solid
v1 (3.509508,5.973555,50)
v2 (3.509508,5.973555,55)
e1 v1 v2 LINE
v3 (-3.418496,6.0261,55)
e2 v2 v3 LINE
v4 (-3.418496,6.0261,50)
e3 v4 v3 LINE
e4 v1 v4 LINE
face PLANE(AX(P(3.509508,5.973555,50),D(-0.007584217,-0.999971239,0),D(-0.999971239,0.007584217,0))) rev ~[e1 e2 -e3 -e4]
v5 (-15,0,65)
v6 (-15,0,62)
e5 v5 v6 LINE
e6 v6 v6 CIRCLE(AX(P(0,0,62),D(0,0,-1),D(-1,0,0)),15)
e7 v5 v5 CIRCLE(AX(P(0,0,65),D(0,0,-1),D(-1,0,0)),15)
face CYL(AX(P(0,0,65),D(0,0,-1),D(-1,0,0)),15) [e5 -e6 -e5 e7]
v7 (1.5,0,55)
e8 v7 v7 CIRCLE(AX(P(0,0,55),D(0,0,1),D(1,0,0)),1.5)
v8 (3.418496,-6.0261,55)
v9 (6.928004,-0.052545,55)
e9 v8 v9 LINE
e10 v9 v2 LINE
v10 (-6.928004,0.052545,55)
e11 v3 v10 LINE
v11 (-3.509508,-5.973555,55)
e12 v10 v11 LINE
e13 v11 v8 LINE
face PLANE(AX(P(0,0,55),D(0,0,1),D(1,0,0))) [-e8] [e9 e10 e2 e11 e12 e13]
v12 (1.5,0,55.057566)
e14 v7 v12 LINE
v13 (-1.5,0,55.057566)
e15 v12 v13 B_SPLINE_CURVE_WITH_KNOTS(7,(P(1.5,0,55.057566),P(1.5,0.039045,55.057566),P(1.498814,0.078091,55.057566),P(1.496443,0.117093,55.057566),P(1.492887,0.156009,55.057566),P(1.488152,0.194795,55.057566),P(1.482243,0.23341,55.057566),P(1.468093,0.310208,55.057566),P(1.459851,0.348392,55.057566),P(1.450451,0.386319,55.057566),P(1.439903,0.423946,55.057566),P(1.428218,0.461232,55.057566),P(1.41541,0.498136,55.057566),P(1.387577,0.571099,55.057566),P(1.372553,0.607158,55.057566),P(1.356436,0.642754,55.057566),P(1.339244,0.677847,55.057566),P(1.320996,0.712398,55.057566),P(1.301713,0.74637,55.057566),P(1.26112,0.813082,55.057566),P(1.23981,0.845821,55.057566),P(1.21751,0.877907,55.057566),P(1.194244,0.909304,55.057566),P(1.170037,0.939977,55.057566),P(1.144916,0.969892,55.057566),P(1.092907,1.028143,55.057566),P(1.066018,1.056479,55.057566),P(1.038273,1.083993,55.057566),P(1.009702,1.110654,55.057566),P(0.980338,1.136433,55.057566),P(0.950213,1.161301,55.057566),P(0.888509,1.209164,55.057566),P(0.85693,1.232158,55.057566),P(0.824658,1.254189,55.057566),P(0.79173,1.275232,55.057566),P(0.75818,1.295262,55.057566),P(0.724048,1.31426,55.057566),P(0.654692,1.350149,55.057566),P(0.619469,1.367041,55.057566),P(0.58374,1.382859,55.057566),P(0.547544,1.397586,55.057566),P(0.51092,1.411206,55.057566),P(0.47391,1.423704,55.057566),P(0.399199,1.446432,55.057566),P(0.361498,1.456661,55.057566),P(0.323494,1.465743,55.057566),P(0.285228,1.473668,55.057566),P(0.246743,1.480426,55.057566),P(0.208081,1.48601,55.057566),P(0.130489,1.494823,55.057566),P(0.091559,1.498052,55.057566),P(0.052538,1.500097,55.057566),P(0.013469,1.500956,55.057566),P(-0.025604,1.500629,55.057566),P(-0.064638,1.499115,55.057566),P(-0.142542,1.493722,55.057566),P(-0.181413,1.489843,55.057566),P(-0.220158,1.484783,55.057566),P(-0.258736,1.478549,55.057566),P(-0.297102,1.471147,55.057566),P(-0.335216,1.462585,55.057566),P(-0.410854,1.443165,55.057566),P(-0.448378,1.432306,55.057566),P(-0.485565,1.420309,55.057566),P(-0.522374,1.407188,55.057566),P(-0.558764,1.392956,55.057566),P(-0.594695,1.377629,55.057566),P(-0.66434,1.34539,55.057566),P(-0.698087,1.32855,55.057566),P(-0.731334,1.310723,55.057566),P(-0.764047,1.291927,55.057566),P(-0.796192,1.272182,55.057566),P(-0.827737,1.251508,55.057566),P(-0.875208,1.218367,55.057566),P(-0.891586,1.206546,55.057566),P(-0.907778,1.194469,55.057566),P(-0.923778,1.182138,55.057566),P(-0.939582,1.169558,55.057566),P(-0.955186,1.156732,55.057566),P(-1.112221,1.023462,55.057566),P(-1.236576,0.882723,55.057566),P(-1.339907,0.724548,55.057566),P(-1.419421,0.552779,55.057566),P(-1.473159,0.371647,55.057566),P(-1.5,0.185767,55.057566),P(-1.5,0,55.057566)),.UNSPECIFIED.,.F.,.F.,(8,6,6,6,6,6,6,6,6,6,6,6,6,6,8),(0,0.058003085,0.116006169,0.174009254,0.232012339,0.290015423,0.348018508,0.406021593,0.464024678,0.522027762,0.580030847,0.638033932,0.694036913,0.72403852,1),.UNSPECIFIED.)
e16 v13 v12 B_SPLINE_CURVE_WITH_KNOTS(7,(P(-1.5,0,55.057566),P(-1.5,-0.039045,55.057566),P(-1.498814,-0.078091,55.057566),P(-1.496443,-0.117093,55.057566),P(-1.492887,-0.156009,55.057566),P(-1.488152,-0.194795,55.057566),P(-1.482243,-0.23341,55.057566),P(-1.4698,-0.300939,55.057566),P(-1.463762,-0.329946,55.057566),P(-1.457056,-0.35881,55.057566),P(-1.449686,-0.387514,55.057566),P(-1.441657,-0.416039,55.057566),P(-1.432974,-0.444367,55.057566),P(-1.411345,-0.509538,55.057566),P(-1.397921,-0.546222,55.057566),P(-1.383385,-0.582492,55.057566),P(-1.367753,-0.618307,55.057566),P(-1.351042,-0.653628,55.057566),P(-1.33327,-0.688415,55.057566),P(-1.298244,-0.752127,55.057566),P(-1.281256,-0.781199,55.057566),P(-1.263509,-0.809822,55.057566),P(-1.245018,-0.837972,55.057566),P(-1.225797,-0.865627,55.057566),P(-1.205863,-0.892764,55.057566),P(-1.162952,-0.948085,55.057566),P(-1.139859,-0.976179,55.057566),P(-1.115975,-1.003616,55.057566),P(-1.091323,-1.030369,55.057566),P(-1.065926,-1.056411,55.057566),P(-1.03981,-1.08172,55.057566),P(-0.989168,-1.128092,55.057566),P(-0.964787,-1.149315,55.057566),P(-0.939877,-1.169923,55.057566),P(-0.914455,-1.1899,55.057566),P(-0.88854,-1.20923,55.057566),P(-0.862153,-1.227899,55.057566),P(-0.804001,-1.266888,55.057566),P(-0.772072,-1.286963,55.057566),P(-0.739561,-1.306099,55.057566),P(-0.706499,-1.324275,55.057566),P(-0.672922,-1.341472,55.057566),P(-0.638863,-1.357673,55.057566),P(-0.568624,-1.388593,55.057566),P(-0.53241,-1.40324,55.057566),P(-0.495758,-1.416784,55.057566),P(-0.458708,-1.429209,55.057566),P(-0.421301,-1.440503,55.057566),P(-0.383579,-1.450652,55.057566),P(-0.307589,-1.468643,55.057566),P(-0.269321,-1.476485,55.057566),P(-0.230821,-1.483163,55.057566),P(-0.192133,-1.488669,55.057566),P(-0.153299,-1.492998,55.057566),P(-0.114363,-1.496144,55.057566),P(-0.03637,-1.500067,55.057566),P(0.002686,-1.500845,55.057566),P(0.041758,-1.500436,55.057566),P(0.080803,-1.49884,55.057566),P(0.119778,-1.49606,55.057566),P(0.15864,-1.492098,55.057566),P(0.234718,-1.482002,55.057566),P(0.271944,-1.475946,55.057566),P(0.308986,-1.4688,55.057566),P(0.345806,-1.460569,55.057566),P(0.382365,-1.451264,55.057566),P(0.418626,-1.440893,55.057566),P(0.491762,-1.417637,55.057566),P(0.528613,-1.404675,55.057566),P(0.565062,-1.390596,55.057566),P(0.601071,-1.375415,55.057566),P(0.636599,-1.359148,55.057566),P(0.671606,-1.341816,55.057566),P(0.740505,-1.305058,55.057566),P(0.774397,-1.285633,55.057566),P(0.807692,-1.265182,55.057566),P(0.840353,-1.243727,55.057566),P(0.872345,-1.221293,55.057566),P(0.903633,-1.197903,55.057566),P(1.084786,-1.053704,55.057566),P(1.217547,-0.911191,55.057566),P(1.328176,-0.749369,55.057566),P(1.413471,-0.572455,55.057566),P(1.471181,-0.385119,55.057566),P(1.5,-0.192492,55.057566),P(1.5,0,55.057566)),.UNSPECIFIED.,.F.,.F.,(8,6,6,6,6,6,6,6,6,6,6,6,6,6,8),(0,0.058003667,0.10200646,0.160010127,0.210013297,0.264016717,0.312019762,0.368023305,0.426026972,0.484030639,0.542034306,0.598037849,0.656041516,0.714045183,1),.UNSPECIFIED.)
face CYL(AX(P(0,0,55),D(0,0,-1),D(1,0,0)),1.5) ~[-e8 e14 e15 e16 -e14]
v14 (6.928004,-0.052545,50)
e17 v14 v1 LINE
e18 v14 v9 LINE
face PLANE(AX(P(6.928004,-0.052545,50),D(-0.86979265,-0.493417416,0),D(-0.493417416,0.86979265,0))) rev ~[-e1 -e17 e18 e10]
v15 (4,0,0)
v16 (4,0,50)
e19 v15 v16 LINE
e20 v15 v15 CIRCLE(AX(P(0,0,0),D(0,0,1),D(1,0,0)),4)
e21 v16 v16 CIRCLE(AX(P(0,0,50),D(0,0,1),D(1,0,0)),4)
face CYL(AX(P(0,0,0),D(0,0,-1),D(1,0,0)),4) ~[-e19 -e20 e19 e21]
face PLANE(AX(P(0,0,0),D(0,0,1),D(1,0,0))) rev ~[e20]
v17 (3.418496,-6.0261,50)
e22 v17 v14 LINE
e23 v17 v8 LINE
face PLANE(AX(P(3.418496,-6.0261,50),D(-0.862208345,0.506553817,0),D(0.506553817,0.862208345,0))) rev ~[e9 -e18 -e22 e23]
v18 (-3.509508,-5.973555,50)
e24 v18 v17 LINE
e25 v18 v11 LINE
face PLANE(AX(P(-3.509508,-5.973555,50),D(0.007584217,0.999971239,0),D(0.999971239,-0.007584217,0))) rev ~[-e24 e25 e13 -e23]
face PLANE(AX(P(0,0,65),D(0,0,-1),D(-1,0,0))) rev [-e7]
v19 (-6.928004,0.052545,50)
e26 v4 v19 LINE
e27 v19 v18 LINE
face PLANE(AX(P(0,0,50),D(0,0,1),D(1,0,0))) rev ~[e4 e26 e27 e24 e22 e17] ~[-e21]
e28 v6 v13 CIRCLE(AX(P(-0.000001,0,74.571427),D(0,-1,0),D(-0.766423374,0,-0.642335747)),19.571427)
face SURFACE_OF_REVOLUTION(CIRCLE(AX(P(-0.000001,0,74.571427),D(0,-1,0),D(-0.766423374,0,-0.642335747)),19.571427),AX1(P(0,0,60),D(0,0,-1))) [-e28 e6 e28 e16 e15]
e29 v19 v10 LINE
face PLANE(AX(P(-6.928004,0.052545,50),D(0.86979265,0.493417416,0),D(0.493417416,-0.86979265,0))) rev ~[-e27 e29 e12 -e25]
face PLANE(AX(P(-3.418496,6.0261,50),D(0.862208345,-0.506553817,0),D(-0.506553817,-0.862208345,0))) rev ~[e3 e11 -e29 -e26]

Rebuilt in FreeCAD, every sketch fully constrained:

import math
import FreeCAD as App
import Part
import Sketcher
from FreeCAD import Vector

doc = App.newDocument("Part")
body = doc.addObject("PartDesign::Body", "Body")

sketch1 = body.newObject("Sketcher::SketchObject", "Sketch")
sketch1.AttachmentSupport = (doc.getObject("XY_Plane"), [""])
sketch1.MapMode = "FlatFace"
sketch1.addGeometry(Part.Circle(Vector(0, 0, 0), Vector(0, 0, 1), 4), False)
sketch1.addConstraint([
    Sketcher.Constraint("Coincident", 0, 3, -1, 1),
    Sketcher.Constraint("Diameter", 0, 8.0),
])
pad1 = body.newObject("PartDesign::Pad", "Pad")
pad1.Profile = sketch1
pad1.Length = 50

sketch2 = body.newObject("Sketcher::SketchObject", "Sketch001")
sketch2.AttachmentSupport = (doc.getObject("XY_Plane"), [""])
sketch2.MapMode = "FlatFace"
sketch2.AttachmentOffset = App.Placement(Vector(0, 0, 50), App.Rotation())
sketch2.addGeometry([
    Part.LineSegment(Vector(7, 0, 0), Vector(4, 6, 0)),
    Part.LineSegment(Vector(4, 6, 0), Vector(-3, 6, 0)),
    Part.LineSegment(Vector(-3, 6, 0), Vector(-7, 0, 0)),
    Part.LineSegment(Vector(-7, 0, 0), Vector(-4, -6, 0)),
    Part.LineSegment(Vector(-4, -6, 0), Vector(3, -6, 0)),
    Part.LineSegment(Vector(3, -6, 0), Vector(7, 0, 0)),
], False)
sketch2.addConstraint([
    Sketcher.Constraint("Coincident", 0, 2, 1, 1),
    Sketcher.Constraint("Coincident", 1, 2, 2, 1),
    Sketcher.Constraint("Coincident", 2, 2, 3, 1),
    Sketcher.Constraint("Coincident", 3, 2, 4, 1),
    Sketcher.Constraint("Coincident", 4, 2, 5, 1),
    Sketcher.Constraint("Coincident", 5, 2, 0, 1),
    Sketcher.Constraint("Symmetric", 0, 2, 3, 2, -1, 1),
    Sketcher.Constraint("Symmetric", 1, 2, 4, 2, -1, 1),
    Sketcher.Constraint("Symmetric", 2, 2, 5, 2, -1, 1),
    Sketcher.Constraint("Equal", 0, 1),
    Sketcher.Constraint("Equal", 1, 2),
    Sketcher.Constraint("DistanceY", -1, 1, 1, 2, 6.0261),
    Sketcher.Constraint("DistanceY", 3, 2, 2, 2, 6.0261),
    Sketcher.Constraint("DistanceX", 2, 2, 4, 2, 10.3465),
    Sketcher.Constraint("DistanceY", 2, 2, 0, 2, 5.92101),
])
pad2 = body.newObject("PartDesign::Pad", "Pad001")
pad2.Profile = sketch2
pad2.Length = 5

sketch3 = body.newObject("Sketcher::SketchObject", "Sketch002")
sketch3.AttachmentSupport = (doc.getObject("XY_Plane"), [""])
sketch3.MapMode = "FlatFace"
sketch3.AttachmentOffset = App.Placement(Vector(0, 0, 55), App.Rotation())
sketch3.addGeometry(Part.Circle(Vector(0, 0, 0), Vector(0, 0, 1), 1.5), False)
sketch3.addConstraint([
    Sketcher.Constraint("Coincident", 0, 3, -1, 1),
    Sketcher.Constraint("Diameter", 0, 3.0),
])
pad3 = body.newObject("PartDesign::Pad", "Pad002")
pad3.Profile = sketch3
pad3.Length = 5

sketch4 = body.newObject("Sketcher::SketchObject", "Sketch003")
sketch4.AttachmentSupport = (doc.getObject("XZ_Plane"), [""])
sketch4.MapMode = "FlatFace"
sketch4.addGeometry([
    Part.LineSegment(Vector(-15, 65, 0), Vector(-15, 62, 0)),
    Part.ArcOfCircle(Part.Circle(Vector(0, 74.6, 0), Vector(0, 0, 1), 19.6), math.radians(-140), math.radians(-90)),
    Part.LineSegment(Vector(0, 55, 0), Vector(0, 65, 0)),
    Part.LineSegment(Vector(0, 65, 0), Vector(-15, 65, 0)),
], False)
sketch4.addConstraint([
    Sketcher.Constraint("Coincident", 0, 2, 1, 1),
    Sketcher.Constraint("Coincident", 1, 2, 2, 1),
    Sketcher.Constraint("Coincident", 2, 2, 3, 1),
    Sketcher.Constraint("Coincident", 3, 2, 0, 1),
    Sketcher.Constraint("Vertical", 0),
    Sketcher.Constraint("Vertical", 2),
    Sketcher.Constraint("Horizontal", 3),
    Sketcher.Constraint("PointOnObject", 1, 3, -2),
    Sketcher.Constraint("PointOnObject", 1, 2, -2),
    Sketcher.Constraint("DistanceX", 3, 2, 3, 1, 15.0),
    Sketcher.Constraint("DistanceY", 0, 2, 0, 1, 3.0),
    Sketcher.Constraint("DistanceY", 2, 1, 2, 2, 10.0),
    Sketcher.Constraint("DistanceY", -1, 1, 0, 2, 62.0),
])
revolution = body.newObject("PartDesign::Revolution", "Revolution")
revolution.Profile = sketch4
revolution.ReferenceAxis = (sketch4, ["V_Axis"])
revolution.Angle = 360

doc.recompute()
